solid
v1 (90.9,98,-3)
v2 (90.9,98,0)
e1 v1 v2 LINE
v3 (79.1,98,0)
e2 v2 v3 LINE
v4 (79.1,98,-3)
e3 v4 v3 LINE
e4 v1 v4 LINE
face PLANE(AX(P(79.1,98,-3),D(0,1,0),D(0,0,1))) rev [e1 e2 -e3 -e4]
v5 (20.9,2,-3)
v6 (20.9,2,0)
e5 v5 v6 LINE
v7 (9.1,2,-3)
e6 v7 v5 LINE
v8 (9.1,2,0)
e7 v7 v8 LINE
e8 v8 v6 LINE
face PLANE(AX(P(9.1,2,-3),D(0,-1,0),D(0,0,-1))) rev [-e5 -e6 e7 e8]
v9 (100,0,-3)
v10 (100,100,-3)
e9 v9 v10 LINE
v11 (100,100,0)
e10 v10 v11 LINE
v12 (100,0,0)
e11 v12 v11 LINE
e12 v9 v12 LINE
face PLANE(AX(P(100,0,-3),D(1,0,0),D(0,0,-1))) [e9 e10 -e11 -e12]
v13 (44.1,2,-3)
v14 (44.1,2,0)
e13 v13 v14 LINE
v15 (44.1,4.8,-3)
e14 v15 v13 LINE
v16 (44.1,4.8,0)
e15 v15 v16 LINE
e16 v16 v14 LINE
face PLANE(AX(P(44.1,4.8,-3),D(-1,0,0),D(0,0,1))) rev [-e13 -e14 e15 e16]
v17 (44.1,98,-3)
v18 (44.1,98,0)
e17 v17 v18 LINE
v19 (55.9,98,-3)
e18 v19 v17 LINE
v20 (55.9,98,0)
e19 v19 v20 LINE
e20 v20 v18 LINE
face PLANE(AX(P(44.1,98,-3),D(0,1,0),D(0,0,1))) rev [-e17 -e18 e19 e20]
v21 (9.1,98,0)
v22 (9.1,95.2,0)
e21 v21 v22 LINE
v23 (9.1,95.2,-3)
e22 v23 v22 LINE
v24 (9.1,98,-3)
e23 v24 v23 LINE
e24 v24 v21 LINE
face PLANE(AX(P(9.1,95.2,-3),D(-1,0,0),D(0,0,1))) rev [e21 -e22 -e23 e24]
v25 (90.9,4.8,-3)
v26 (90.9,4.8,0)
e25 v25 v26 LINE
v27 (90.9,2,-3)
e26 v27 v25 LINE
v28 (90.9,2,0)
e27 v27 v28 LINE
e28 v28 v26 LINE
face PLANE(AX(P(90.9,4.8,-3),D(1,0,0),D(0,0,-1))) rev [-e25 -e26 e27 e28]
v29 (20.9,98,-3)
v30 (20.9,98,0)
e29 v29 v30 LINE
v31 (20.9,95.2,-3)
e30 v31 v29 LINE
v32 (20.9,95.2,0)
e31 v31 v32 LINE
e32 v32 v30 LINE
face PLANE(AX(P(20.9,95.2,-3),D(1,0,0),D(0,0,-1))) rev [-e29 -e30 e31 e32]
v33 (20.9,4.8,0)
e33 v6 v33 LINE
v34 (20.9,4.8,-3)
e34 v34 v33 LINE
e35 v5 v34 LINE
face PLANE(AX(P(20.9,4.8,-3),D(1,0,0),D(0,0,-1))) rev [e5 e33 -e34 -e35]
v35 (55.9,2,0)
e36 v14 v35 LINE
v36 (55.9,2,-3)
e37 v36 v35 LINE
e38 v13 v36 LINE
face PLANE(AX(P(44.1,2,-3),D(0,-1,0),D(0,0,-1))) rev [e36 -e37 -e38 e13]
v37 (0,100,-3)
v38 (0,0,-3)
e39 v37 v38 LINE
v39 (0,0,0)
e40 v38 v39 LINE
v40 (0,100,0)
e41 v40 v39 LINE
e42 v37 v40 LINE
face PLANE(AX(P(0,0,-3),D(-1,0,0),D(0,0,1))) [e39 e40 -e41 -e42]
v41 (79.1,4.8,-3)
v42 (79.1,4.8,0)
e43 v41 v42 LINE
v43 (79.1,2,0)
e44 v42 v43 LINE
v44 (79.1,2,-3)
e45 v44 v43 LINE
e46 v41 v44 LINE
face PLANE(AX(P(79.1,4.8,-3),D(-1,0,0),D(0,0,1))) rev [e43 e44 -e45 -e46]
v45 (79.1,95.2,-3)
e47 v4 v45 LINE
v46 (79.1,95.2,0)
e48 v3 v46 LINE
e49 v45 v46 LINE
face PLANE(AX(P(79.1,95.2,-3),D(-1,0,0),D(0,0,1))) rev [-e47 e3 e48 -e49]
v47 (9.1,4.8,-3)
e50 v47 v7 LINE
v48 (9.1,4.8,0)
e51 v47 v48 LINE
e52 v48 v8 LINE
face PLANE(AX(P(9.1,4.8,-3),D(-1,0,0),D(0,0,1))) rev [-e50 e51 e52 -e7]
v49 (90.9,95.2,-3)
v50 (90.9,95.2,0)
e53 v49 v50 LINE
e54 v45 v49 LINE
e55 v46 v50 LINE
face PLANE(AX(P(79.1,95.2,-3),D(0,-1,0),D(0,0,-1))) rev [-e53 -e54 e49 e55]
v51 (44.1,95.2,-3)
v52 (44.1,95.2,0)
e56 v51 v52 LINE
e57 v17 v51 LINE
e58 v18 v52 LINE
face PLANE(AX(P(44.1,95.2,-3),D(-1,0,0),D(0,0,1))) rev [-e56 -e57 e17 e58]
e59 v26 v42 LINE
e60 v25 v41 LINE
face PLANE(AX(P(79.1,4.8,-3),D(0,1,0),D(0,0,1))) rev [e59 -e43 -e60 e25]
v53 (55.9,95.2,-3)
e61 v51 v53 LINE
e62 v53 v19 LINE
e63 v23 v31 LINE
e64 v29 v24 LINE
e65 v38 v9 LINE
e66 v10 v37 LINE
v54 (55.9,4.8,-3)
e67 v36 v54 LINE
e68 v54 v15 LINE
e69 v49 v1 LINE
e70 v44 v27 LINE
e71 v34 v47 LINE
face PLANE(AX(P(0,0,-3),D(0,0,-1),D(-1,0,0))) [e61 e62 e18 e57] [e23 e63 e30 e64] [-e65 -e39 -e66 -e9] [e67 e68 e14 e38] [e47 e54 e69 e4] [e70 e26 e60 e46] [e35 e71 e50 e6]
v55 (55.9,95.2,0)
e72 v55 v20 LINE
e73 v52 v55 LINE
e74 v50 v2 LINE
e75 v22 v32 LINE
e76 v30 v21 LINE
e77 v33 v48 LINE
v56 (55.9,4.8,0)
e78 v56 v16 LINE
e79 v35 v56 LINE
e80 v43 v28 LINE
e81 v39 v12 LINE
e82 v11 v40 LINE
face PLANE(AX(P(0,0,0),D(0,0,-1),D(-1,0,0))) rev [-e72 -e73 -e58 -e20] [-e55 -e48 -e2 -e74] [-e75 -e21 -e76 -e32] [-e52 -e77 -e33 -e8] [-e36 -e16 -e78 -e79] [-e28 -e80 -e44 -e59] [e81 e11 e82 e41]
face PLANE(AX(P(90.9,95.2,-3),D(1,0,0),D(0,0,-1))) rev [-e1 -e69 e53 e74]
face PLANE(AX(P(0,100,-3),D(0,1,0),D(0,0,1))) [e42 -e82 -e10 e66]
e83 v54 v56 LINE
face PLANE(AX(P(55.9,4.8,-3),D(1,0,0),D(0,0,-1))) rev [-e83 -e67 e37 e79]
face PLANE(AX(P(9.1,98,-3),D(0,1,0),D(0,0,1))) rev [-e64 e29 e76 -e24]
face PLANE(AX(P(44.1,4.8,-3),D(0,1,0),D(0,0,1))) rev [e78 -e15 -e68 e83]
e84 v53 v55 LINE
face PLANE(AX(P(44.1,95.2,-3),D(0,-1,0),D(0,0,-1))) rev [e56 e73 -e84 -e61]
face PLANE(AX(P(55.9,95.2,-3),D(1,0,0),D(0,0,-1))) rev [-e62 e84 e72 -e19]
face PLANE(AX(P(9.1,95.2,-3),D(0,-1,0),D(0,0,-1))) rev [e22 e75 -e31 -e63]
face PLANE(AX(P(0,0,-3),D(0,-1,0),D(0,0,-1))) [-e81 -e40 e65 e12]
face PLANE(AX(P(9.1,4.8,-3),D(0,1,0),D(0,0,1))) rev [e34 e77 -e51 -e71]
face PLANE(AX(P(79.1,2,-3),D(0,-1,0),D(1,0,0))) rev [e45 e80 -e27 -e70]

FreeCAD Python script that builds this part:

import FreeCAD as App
import Part
import Sketcher

doc = App.newDocument("Part")
params = doc.addObject("Spreadsheet::Sheet", "Params")
for row, (alias, value) in enumerate([
    ("sketch1_width", "100 mm"),
    ("sketch1_width2", "11.8 mm"),
    ("sketch1_height", "2.8 mm"),
    ("pad1_length", "3 mm"),
], start=1):
    params.set(f"A{row}", alias)
    params.set(f"B{row}", "=" + value)
    params.setAlias(f"B{row}", alias)

body = doc.addObject("PartDesign::Body", "Body")

sketch1 = doc.addObject("Sketcher::SketchObject", "Sketch")
body.addObject(sketch1)
sketch1.AttachmentSupport = (doc.XY_Plane, [""])
sketch1.MapMode = "FlatFace"
sketch1.addGeometry([
    Part.LineSegment(App.Vector(0, 100, 0), App.Vector(0, 0, 0)),
    Part.LineSegment(App.Vector(0, 0, 0), App.Vector(100, 0, 0)),
    Part.LineSegment(App.Vector(100, 0, 0), App.Vector(100, 100, 0)),
    Part.LineSegment(App.Vector(100, 100, 0), App.Vector(0, 100, 0)),
    Part.LineSegment(App.Vector(20.9, 2, 0), App.Vector(9.1, 2, 0)),
    Part.LineSegment(App.Vector(9.1, 2, 0), App.Vector(9.1, 4.8, 0)),
    Part.LineSegment(App.Vector(9.1, 4.8, 0), App.Vector(20.9, 4.8, 0)),
    Part.LineSegment(App.Vector(20.9, 4.8, 0), App.Vector(20.9, 2, 0)),
    Part.LineSegment(App.Vector(55.9, 2, 0), App.Vector(44.1, 2, 0)),
    Part.LineSegment(App.Vector(44.1, 2, 0), App.Vector(44.1, 4.8, 0)),
    Part.LineSegment(App.Vector(44.1, 4.8, 0), App.Vector(55.9, 4.8, 0)),
    Part.LineSegment(App.Vector(55.9, 4.8, 0), App.Vector(55.9, 2, 0)),
    Part.LineSegment(App.Vector(90.9, 2, 0), App.Vector(79.1, 2, 0)),
    Part.LineSegment(App.Vector(79.1, 2, 0), App.Vector(79.1, 4.8, 0)),
    Part.LineSegment(App.Vector(79.1, 4.8, 0), App.Vector(90.9, 4.8, 0)),
    Part.LineSegment(App.Vector(90.9, 4.8, 0), App.Vector(90.9, 2, 0)),
    Part.LineSegment(App.Vector(20.9, 95.2, 0), App.Vector(9.1, 95.2, 0)),
    Part.LineSegment(App.Vector(9.1, 95.2, 0), App.Vector(9.1, 98, 0)),
    Part.LineSegment(App.Vector(9.1, 98, 0), App.Vector(20.9, 98, 0)),
    Part.LineSegment(App.Vector(20.9, 98, 0), App.Vector(20.9, 95.2, 0)),
    Part.LineSegment(App.Vector(55.9, 95.2, 0), App.Vector(44.1, 95.2, 0)),
    Part.LineSegment(App.Vector(44.1, 95.2, 0), App.Vector(44.1, 98, 0)),
    Part.LineSegment(App.Vector(44.1, 98, 0), App.Vector(55.9, 98, 0)),
    Part.LineSegment(App.Vector(55.9, 98, 0), App.Vector(55.9, 95.2, 0)),
    Part.LineSegment(App.Vector(90.9, 95.2, 0), App.Vector(79.1, 95.2, 0)),
    Part.LineSegment(App.Vector(79.1, 95.2, 0), App.Vector(79.1, 98, 0)),
    Part.LineSegment(App.Vector(79.1, 98, 0), App.Vector(90.9, 98, 0)),
    Part.LineSegment(App.Vector(90.9, 98, 0), App.Vector(90.9, 95.2, 0)),
], False)
sketch1.addConstraint([
    Sketcher.Constraint("Coincident", 0, 2, 1, 1),
    Sketcher.Constraint("Coincident", 1, 2, 2, 1),
    Sketcher.Constraint("Coincident", 2, 2, 3, 1),
    Sketcher.Constraint("Coincident", 3, 2, 0, 1),
    Sketcher.Constraint("Coincident", 4, 2, 5, 1),
    Sketcher.Constraint("Coincident", 5, 2, 6, 1),
    Sketcher.Constraint("Coincident", 6, 2, 7, 1),
    Sketcher.Constraint("Coincident", 7, 2, 4, 1),
    Sketcher.Constraint("Coincident", 8, 2, 9, 1),
    Sketcher.Constraint("Coincident", 9, 2, 10, 1),
    Sketcher.Constraint("Coincident", 10, 2, 11, 1),
    Sketcher.Constraint("Coincident", 11, 2, 8, 1),
    Sketcher.Constraint("Coincident", 12, 2, 13, 1),
    Sketcher.Constraint("Coincident", 13, 2, 14, 1),
    Sketcher.Constraint("Coincident", 14, 2, 15, 1),
    Sketcher.Constraint("Coincident", 15, 2, 12, 1),
    Sketcher.Constraint("Coincident", 16, 2, 17, 1),
    Sketcher.Constraint("Coincident", 17, 2, 18, 1),
    Sketcher.Constraint("Coincident", 18, 2, 19, 1),
    Sketcher.Constraint("Coincident", 19, 2, 16, 1),
    Sketcher.Constraint("Coincident", 20, 2, 21, 1),
    Sketcher.Constraint("Coincident", 21, 2, 22, 1),
    Sketcher.Constraint("Coincident", 22, 2, 23, 1),
    Sketcher.Constraint("Coincident", 23, 2, 20, 1),
    Sketcher.Constraint("Coincident", 24, 2, 25, 1),
    Sketcher.Constraint("Coincident", 25, 2, 26, 1),
    Sketcher.Constraint("Coincident", 26, 2, 27, 1),
    Sketcher.Constraint("Coincident", 27, 2, 24, 1),
    Sketcher.Constraint("Vertical", 0),
    Sketcher.Constraint("Horizontal", 1),
    Sketcher.Constraint("Vertical", 2),
    Sketcher.Constraint("Horizontal", 3),
    Sketcher.Constraint("Horizontal", 4),
    Sketcher.Constraint("Vertical", 5),
    Sketcher.Constraint("Horizontal", 6),
    Sketcher.Constraint("Vertical", 7),
    Sketcher.Constraint("Horizontal", 8),
    Sketcher.Constraint("Vertical", 9),
    Sketcher.Constraint("Horizontal", 10),
    Sketcher.Constraint("Vertical", 11),
    Sketcher.Constraint("Horizontal", 12),
    Sketcher.Constraint("Vertical", 13),
    Sketcher.Constraint("Horizontal", 14),
    Sketcher.Constraint("Vertical", 15),
    Sketcher.Constraint("Horizontal", 16),
    Sketcher.Constraint("Vertical", 17),
    Sketcher.Constraint("Horizontal", 18),
    Sketcher.Constraint("Vertical", 19),
    Sketcher.Constraint("Horizontal", 20),
    Sketcher.Constraint("Vertical", 21),
    Sketcher.Constraint("Horizontal", 22),
    Sketcher.Constraint("Vertical", 23),
    Sketcher.Constraint("Horizontal", 24),
    Sketcher.Constraint("Vertical", 25),
    Sketcher.Constraint("Horizontal", 26),
    Sketcher.Constraint("Vertical", 27),
    Sketcher.Constraint("Coincident", 0, 2, -1, 1),
    Sketcher.Constraint("Horizontal", 7, 2, 8, 2),
    Sketcher.Constraint("Horizontal", 6, 2, 9, 2),
    Sketcher.Constraint("Horizontal", 11, 2, 12, 2),
    Sketcher.Constraint("Horizontal", 10, 2, 13, 2),
    Sketcher.Constraint("Horizontal", 19, 2, 20, 2),
    Sketcher.Constraint("Horizontal", 18, 2, 21, 2),
    Sketcher.Constraint("Horizontal", 23, 2, 24, 2),
    Sketcher.Constraint("Horizontal", 22, 2, 25, 2),
    Sketcher.Constraint("Vertical", 5, 2, 16, 2),
    Sketcher.Constraint("Vertical", 7, 2, 18, 2),
    Sketcher.Constraint("Vertical", 9, 2, 20, 2),
    Sketcher.Constraint("Vertical", 11, 2, 22, 2),
    Sketcher.Constraint("Vertical", 13, 2, 24, 2),
    Sketcher.Constraint("Vertical", 15, 2, 26, 2),
    Sketcher.Constraint("Equal", 6, 8),
    Sketcher.Constraint("Equal", 10, 12),
    Sketcher.Constraint("Equal", 3, 0),
    Sketcher.Constraint("Equal", 15, 17),
    Sketcher.Constraint("DistanceX", 1, 1, 1, 2, 100.0),
    Sketcher.Constraint("DistanceX", 4, 2, 4, 1, 11.8),
    Sketcher.Constraint("DistanceY", 5, 1, 5, 2, 2.8),
    Sketcher.Constraint("DistanceY", -1, 1, 4, 2, 2.0),
    Sketcher.Constraint("DistanceY", -1, 1, 17, 2, 98.0),
    Sketcher.Constraint("DistanceX", 4, 2, 8, 2, 35.0),
    Sketcher.Constraint("DistanceX", 8, 2, 12, 2, 35.0),
    Sketcher.Constraint("DistanceX", -1, 1, 4, 2, 9.1),
])
sketch1.setExpression("Constraints[75]", "Params.sketch1_width")
sketch1.setExpression("Constraints[76]", "Params.sketch1_width2")
sketch1.setExpression("Constraints[77]", "Params.sketch1_height")
pad1 = doc.addObject("PartDesign::Pad", "Pad")
body.addObject(pad1)
pad1.Profile = sketch1
pad1.setExpression("Length", "Params.pad1_length")
pad1.Reversed = True

doc.recompute()
